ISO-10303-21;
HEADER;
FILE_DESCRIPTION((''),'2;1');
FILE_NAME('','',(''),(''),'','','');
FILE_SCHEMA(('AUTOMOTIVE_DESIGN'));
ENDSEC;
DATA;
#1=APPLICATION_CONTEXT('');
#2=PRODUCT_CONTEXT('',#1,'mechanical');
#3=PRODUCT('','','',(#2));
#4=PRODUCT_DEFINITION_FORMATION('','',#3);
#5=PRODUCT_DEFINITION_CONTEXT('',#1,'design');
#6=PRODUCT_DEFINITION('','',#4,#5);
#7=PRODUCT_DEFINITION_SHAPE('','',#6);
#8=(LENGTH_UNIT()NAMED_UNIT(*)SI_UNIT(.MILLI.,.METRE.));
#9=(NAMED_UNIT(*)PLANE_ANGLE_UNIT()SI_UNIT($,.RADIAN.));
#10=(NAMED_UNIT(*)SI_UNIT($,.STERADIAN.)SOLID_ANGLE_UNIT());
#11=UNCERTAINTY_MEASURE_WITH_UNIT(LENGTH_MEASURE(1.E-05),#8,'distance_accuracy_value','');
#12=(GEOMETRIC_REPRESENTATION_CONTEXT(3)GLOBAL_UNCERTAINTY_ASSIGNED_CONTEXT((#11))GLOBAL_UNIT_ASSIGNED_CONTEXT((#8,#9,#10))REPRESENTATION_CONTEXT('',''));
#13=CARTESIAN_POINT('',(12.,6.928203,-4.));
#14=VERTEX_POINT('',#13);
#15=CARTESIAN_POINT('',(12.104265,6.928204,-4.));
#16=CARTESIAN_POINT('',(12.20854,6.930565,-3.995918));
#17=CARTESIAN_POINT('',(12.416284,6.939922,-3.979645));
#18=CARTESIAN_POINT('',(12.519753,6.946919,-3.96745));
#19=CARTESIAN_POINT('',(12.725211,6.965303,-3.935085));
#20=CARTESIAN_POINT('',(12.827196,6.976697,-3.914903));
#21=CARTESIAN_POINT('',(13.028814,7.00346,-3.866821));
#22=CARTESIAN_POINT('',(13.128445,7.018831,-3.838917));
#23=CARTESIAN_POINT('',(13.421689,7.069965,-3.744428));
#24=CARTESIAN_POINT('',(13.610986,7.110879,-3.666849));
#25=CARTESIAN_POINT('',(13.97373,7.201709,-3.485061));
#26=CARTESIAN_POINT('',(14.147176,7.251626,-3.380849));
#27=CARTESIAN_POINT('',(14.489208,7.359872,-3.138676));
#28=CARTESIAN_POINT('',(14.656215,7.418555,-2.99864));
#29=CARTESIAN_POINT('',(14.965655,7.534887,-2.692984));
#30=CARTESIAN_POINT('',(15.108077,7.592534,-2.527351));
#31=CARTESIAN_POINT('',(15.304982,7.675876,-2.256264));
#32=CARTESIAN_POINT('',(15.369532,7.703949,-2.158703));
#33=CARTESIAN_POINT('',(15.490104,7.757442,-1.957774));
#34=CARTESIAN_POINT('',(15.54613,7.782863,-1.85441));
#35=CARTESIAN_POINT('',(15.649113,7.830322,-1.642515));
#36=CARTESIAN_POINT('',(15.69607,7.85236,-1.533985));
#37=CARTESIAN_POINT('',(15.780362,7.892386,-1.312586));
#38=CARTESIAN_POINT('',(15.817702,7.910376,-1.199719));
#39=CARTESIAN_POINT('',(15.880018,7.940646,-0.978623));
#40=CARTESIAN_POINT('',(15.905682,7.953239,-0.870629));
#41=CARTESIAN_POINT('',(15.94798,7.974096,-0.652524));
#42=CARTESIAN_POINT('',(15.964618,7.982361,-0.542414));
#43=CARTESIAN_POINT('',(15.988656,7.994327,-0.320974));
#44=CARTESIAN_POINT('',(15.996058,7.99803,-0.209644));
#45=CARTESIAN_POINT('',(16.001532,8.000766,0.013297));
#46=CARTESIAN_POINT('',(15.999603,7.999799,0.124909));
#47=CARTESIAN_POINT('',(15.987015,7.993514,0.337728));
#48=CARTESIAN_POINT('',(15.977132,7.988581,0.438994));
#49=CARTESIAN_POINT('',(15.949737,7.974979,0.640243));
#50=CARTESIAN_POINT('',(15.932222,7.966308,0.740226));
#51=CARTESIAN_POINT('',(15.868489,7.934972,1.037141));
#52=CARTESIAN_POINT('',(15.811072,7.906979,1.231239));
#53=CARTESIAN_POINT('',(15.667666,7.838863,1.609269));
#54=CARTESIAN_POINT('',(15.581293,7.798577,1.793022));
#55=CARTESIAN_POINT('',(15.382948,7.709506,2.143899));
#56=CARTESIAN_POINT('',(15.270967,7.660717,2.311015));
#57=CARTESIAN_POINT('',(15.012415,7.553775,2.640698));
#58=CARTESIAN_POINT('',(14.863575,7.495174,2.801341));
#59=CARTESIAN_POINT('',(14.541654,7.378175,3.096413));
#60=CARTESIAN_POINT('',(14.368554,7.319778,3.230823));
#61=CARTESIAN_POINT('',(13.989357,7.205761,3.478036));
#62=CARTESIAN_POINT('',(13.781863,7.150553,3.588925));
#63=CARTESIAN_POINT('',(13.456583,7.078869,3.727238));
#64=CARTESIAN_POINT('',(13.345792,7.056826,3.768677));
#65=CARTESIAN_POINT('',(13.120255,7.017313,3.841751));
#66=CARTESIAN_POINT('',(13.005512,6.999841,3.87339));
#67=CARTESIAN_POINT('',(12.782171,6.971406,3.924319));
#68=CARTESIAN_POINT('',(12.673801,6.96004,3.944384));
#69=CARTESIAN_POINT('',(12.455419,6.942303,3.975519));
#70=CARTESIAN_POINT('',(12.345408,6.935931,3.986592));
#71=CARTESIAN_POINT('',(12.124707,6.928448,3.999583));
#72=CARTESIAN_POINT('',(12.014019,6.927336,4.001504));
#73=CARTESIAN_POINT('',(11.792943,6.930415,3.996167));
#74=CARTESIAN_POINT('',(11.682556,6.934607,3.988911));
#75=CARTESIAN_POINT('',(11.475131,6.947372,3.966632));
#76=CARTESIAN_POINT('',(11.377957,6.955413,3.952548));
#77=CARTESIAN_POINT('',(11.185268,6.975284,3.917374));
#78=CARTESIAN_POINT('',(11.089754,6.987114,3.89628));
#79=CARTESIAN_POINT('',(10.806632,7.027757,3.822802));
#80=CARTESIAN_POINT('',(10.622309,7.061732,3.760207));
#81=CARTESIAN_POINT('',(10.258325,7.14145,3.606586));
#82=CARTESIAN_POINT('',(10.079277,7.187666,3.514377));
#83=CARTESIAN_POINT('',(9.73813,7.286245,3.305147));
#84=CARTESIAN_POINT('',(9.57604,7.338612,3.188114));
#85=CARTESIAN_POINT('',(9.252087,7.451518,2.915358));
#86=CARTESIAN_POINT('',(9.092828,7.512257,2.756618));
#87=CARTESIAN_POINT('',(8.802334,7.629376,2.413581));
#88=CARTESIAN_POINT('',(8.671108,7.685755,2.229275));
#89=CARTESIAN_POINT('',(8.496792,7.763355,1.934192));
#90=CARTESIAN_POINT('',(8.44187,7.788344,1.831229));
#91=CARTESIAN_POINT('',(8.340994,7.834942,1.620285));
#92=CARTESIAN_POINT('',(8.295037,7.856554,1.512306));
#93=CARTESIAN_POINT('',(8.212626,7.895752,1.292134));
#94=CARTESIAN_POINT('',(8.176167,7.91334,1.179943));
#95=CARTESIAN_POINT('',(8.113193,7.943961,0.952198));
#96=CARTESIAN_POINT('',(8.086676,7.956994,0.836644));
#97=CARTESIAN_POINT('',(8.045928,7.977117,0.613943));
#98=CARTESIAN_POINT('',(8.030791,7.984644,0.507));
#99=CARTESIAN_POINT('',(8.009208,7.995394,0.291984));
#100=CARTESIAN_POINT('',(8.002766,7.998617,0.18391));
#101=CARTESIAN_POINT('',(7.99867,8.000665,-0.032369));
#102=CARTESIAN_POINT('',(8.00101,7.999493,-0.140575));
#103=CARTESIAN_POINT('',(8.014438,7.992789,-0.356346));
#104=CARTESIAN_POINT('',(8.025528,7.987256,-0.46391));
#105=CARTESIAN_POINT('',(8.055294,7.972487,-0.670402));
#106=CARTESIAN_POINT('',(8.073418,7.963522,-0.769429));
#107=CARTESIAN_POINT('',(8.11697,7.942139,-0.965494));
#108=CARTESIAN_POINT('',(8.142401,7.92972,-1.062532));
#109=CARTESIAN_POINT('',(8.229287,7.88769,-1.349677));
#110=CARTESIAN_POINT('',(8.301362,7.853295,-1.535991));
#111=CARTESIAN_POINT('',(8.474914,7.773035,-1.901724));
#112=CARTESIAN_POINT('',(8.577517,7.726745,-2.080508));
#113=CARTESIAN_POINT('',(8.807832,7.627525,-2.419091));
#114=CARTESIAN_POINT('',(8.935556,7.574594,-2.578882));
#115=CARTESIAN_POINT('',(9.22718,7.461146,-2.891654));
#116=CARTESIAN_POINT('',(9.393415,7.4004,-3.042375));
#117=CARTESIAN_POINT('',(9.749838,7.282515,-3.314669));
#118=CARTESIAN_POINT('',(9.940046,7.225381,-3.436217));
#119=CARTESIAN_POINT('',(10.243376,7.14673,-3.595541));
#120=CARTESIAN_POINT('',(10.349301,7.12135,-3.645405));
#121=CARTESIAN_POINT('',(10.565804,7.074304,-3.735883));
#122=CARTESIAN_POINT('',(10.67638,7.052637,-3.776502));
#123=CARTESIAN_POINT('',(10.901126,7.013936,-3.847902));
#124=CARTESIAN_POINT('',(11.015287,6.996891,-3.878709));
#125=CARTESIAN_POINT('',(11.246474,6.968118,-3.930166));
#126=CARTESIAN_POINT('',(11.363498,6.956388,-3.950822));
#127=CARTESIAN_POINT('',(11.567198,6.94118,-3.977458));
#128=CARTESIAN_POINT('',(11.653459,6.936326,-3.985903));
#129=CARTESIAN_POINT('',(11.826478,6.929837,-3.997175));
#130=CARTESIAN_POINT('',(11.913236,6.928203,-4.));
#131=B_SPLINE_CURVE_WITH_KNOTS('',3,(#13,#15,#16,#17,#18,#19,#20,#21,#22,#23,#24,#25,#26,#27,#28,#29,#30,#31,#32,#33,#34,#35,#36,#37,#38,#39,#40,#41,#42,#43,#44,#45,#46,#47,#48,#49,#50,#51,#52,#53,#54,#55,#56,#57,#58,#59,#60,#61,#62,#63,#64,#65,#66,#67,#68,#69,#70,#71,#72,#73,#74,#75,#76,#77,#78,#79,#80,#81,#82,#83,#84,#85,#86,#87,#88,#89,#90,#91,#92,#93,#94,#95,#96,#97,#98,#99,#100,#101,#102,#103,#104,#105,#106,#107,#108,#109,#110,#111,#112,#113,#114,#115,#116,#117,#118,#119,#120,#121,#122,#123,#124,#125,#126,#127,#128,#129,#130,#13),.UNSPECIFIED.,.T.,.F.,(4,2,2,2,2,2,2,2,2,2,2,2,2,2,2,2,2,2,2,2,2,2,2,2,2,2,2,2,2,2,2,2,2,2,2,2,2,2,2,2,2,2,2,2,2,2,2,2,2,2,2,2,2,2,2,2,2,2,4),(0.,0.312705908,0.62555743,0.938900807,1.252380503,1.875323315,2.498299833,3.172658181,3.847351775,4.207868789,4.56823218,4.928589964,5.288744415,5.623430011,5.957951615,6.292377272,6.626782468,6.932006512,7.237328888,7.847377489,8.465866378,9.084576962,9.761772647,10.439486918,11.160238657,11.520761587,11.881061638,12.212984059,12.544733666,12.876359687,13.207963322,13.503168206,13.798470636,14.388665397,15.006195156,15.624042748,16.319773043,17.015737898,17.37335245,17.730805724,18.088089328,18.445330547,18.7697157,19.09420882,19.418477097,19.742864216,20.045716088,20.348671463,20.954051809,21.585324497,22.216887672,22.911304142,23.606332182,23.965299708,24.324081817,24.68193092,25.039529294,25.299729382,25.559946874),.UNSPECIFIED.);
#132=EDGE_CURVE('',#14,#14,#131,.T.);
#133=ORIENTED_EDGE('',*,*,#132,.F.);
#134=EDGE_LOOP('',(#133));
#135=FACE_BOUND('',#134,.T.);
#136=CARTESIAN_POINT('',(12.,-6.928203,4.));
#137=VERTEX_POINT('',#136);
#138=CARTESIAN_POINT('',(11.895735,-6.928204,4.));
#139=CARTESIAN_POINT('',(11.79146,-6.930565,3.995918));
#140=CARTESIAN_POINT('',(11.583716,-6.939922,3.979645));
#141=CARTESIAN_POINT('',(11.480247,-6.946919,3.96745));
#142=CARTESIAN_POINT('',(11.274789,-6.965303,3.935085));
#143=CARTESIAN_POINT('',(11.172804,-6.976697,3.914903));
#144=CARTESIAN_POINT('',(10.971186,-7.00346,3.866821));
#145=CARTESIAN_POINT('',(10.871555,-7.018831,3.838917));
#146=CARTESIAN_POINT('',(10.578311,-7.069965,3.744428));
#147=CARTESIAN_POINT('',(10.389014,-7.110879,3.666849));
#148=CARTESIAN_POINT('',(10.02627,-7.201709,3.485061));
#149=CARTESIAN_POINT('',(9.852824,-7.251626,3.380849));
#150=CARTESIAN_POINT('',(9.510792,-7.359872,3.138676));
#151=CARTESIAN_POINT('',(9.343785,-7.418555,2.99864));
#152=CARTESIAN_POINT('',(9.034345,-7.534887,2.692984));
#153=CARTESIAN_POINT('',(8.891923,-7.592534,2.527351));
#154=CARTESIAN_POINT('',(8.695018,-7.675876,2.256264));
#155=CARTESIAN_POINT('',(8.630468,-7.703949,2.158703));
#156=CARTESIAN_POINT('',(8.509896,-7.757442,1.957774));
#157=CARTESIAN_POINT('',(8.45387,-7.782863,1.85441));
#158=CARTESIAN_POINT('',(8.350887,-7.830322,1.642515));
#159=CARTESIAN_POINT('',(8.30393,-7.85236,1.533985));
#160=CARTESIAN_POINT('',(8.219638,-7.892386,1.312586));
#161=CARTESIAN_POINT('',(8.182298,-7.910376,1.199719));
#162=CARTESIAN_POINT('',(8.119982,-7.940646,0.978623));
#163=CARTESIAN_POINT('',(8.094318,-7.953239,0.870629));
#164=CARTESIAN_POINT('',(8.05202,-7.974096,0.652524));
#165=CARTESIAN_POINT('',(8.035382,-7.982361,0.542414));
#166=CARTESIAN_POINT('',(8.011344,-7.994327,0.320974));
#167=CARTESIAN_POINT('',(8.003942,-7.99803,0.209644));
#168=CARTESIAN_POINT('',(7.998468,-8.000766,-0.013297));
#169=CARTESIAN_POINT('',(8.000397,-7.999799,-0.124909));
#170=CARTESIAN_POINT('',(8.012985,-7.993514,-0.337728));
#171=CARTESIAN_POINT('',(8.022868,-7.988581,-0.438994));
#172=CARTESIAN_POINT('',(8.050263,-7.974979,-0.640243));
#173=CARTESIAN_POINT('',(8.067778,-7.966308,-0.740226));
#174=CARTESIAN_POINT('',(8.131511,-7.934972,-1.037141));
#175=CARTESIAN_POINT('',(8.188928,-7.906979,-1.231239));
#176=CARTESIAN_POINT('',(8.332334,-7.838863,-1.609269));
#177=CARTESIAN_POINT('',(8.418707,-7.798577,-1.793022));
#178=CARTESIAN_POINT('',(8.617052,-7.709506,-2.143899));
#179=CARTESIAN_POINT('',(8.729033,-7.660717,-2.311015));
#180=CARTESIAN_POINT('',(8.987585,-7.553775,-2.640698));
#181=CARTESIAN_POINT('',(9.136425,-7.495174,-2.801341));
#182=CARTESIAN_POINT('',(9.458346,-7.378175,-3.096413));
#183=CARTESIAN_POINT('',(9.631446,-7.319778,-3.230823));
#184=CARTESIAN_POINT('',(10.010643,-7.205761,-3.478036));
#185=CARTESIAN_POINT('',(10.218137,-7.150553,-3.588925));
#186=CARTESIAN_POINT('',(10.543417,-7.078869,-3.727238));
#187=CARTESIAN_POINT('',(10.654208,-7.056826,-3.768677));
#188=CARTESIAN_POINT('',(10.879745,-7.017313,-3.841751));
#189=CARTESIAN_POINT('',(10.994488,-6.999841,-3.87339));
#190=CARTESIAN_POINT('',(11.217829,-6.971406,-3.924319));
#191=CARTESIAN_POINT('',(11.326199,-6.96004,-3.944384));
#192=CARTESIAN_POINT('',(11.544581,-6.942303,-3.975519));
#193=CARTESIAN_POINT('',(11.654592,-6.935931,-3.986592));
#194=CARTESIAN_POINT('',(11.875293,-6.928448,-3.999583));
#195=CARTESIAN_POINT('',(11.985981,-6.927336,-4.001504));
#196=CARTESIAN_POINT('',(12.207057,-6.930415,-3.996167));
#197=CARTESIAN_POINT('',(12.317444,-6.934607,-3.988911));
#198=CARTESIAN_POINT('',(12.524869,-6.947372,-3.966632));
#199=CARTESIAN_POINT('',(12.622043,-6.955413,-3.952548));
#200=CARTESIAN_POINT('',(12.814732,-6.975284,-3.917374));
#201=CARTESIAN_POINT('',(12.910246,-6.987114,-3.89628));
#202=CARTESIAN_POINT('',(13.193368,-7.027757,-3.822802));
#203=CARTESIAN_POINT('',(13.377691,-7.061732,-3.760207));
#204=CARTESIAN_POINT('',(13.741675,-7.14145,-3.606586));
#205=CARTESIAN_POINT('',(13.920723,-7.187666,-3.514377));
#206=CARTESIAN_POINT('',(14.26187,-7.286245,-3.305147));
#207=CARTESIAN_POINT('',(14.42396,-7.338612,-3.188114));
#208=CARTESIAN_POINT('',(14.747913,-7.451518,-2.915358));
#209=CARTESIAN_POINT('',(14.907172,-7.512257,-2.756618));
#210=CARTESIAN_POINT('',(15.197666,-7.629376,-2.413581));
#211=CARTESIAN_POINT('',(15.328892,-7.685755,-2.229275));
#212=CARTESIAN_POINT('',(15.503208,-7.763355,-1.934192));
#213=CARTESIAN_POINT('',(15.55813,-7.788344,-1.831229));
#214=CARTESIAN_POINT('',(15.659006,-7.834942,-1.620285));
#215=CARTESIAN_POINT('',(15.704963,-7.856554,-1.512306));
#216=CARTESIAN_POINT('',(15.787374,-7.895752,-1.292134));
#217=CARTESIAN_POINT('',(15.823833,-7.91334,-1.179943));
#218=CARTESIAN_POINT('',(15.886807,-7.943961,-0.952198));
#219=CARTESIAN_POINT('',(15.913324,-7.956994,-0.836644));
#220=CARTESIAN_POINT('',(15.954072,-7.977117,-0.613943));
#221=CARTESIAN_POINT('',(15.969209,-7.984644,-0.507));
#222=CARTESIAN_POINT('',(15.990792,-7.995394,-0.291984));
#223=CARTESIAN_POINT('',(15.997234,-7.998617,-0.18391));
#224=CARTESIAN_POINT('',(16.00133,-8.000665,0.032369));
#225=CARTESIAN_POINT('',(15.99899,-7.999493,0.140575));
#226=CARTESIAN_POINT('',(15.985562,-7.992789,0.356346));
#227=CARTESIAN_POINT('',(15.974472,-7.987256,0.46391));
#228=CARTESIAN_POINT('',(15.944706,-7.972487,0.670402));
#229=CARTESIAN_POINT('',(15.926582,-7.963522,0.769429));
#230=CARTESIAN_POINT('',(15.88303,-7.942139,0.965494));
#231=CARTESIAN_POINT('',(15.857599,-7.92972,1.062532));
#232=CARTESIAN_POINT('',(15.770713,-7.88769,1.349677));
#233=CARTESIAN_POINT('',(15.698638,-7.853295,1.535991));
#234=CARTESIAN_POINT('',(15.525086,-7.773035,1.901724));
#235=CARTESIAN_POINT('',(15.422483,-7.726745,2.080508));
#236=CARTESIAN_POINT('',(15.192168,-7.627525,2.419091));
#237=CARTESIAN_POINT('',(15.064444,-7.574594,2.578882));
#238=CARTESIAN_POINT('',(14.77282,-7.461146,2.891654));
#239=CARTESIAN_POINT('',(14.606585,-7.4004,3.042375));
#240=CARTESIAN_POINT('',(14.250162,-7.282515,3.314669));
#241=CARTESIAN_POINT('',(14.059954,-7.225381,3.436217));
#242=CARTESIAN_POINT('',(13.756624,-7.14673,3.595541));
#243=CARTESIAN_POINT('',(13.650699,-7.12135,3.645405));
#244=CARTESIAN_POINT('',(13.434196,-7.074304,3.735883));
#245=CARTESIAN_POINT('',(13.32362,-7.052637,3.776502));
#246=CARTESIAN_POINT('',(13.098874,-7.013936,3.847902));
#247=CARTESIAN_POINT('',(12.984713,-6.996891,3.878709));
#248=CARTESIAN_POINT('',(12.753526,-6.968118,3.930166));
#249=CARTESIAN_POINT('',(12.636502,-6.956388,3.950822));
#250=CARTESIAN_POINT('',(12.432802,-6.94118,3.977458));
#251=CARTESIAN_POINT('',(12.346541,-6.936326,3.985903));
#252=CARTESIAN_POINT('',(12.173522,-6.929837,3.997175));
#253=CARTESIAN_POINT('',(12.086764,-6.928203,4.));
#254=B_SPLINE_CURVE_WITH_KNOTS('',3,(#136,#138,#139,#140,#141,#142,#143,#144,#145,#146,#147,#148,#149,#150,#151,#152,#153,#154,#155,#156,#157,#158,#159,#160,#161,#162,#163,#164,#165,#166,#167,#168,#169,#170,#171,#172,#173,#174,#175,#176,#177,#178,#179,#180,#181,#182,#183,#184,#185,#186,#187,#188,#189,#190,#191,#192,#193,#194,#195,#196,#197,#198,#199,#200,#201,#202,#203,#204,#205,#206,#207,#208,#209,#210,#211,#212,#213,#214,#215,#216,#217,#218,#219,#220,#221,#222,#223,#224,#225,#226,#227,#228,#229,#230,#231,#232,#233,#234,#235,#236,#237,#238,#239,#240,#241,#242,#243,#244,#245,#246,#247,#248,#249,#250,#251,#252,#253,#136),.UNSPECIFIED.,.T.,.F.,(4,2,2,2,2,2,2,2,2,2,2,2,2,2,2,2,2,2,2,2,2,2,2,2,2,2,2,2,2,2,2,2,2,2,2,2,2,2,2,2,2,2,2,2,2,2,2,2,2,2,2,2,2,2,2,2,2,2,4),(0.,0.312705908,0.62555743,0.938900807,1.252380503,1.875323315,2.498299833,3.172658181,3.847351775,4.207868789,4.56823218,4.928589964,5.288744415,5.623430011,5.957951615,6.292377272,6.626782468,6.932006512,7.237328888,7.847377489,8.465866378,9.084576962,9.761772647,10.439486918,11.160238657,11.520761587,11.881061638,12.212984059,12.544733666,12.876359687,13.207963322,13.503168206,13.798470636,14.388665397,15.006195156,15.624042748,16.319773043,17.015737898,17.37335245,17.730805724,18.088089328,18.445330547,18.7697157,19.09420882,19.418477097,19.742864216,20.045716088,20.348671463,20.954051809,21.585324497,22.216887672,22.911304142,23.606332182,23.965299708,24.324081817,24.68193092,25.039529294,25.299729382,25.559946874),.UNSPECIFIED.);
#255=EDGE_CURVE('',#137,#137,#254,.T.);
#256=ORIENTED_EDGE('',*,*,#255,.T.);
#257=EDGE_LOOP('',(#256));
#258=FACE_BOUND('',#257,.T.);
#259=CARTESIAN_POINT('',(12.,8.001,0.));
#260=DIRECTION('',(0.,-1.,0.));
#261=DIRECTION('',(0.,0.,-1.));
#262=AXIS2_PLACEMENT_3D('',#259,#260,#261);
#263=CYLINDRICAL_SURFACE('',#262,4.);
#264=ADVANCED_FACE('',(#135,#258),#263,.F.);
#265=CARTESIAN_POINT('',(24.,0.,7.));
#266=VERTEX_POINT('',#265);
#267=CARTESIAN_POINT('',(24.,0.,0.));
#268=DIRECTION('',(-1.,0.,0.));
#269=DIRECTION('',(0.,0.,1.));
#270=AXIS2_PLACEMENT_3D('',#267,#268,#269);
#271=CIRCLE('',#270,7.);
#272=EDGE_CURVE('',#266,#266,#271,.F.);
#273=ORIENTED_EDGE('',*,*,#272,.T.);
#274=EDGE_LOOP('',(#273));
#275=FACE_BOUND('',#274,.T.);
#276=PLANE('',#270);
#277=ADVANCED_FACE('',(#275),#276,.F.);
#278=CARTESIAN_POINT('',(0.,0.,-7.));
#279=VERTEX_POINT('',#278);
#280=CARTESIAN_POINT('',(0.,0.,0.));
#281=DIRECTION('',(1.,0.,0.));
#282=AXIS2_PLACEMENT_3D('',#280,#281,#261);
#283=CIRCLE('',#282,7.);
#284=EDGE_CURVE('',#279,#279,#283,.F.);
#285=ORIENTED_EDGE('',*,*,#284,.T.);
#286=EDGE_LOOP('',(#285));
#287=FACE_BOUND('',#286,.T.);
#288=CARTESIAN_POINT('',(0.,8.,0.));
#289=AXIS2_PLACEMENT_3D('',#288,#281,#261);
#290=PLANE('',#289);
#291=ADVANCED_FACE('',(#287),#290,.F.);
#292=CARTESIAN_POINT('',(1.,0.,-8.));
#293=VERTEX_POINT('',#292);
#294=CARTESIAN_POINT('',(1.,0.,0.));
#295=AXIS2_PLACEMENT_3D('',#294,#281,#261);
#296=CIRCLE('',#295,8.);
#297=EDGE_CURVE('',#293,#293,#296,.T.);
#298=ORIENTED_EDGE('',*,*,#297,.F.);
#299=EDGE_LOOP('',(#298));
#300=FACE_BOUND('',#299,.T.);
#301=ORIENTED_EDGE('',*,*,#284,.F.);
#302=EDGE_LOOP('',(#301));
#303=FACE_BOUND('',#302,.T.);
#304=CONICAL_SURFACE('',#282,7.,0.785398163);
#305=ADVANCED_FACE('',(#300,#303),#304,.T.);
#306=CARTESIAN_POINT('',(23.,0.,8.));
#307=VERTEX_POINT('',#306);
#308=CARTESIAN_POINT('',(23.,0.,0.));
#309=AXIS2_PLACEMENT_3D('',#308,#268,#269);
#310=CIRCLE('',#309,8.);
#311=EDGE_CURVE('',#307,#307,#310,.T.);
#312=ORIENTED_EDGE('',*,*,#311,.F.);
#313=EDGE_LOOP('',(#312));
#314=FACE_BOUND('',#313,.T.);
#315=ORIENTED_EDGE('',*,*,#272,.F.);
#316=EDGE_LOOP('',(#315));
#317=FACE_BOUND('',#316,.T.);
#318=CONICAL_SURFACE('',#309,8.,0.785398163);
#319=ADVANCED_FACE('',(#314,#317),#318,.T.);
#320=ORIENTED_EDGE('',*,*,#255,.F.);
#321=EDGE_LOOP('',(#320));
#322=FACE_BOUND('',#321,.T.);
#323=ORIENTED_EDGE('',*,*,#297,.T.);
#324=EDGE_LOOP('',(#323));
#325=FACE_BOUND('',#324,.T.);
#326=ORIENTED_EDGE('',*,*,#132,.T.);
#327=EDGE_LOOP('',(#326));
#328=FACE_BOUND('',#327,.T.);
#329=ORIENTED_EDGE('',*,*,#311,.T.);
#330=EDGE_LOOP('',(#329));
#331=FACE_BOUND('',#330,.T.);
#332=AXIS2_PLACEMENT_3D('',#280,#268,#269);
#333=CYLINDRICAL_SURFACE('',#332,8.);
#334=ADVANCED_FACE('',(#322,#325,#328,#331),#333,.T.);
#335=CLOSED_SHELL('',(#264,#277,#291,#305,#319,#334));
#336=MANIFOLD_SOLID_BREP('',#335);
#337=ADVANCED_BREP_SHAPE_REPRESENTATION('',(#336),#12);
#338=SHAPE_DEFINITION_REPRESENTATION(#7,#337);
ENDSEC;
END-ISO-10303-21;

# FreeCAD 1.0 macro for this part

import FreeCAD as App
import Part
import Sketcher
from FreeCAD import Vector


def edges_at(feature, points):
    """Names of the edges that pass closest to the given points."""
    edges = feature.Shape.Edges
    near = lambda p: min(range(len(edges)), key=lambda i: edges[i].distToShape(Part.Vertex(*p))[0])
    return sorted({f"Edge{near(p) + 1}" for p in points})


def add_polygon(sketch, points):
    """Adds a closed chain of lines whose ends are joined by coincident constraints."""
    first, n = sketch.GeometryCount, len(points)
    for a, b in zip(points, points[1:] + points[:1]):
        sketch.addGeometry(Part.LineSegment(App.Vector(*a, 0), App.Vector(*b, 0)), False)
    for i in range(n):
        sketch.addConstraint(Sketcher.Constraint("Coincident", first + i, 2, first + (i + 1) % n, 1))

doc = App.newDocument("Part")
body = doc.addObject("PartDesign::Body", "Body")

# Sketch on XY plane
sketch1 = doc.addObject("Sketcher::SketchObject", "Sketch")
body.addObject(sketch1)
sketch1.AttachmentSupport = (doc.XY_Plane, [""])
sketch1.MapMode = "FlatFace"
add_polygon(sketch1, [(0, 8), (0, 0), (24, 0), (24, 8)])  # lines 0-3
sketch1.addConstraint(Sketcher.Constraint("Vertical", 0))
sketch1.addConstraint(Sketcher.Constraint("Horizontal", 1))
sketch1.addConstraint(Sketcher.Constraint("Vertical", 2))
sketch1.addConstraint(Sketcher.Constraint("Horizontal", 3))
sketch1.addConstraint(Sketcher.Constraint("Coincident", 0, 2, -1, 1))
sketch1.addConstraint(Sketcher.Constraint("DistanceX", 1, 1, 1, 2, 24.0))
sketch1.addConstraint(Sketcher.Constraint("DistanceY", 0, 2, 0, 1, 8.0))
revolution = doc.addObject("PartDesign::Revolution", "Revolution")
body.addObject(revolution)
revolution.Profile = sketch1
revolution.ReferenceAxis = (sketch1, ["H_Axis"])
revolution.Angle = 360

# Sketch on XZ plane
sketch2 = doc.addObject("Sketcher::SketchObject", "Sketch001")
body.addObject(sketch2)
sketch2.AttachmentSupport = (doc.XZ_Plane, [""])
sketch2.MapMode = "FlatFace"
sketch2.addGeometry(Part.Circle(Vector(12, 0, 0), Vector(0, 0, 1), 4), False)
sketch2.addConstraint(Sketcher.Constraint("PointOnObject", 0, 3, -1))
sketch2.addConstraint(Sketcher.Constraint("Diameter", 0, 8.0))
sketch2.addConstraint(Sketcher.Constraint("DistanceX", -1, 1, 0, 3, 12.0))
pocket1 = doc.addObject("PartDesign::Pocket", "Pocket")
body.addObject(pocket1)
pocket1.Profile = sketch2
pocket1.Type = "UpToFirst"
pocket1.Reversed = True

# Sketch on XZ plane
sketch3 = doc.addObject("Sketcher::SketchObject", "Sketch002")
body.addObject(sketch3)
sketch3.AttachmentSupport = (doc.XZ_Plane, [""])
sketch3.MapMode = "FlatFace"
sketch3.addGeometry(Part.Circle(Vector(12, 0, 0), Vector(0, 0, 1), 4), False)
sketch3.addConstraint(Sketcher.Constraint("PointOnObject", 0, 3, -1))
sketch3.addConstraint(Sketcher.Constraint("Diameter", 0, 8.0))
sketch3.addConstraint(Sketcher.Constraint("DistanceX", -1, 1, 0, 3, 12.0))
pocket2 = doc.addObject("PartDesign::Pocket", "Pocket001")
body.addObject(pocket2)
pocket2.Profile = sketch3
pocket2.Length = 8
doc.recompute()

chamfer = doc.addObject("PartDesign::Chamfer", "Chamfer")
body.addObject(chamfer)
chamfer.Base = (pocket2, edges_at(pocket2, [(0, -8, 0), (24, -8, 0)]))
chamfer.Size = 1

doc.recompute()
